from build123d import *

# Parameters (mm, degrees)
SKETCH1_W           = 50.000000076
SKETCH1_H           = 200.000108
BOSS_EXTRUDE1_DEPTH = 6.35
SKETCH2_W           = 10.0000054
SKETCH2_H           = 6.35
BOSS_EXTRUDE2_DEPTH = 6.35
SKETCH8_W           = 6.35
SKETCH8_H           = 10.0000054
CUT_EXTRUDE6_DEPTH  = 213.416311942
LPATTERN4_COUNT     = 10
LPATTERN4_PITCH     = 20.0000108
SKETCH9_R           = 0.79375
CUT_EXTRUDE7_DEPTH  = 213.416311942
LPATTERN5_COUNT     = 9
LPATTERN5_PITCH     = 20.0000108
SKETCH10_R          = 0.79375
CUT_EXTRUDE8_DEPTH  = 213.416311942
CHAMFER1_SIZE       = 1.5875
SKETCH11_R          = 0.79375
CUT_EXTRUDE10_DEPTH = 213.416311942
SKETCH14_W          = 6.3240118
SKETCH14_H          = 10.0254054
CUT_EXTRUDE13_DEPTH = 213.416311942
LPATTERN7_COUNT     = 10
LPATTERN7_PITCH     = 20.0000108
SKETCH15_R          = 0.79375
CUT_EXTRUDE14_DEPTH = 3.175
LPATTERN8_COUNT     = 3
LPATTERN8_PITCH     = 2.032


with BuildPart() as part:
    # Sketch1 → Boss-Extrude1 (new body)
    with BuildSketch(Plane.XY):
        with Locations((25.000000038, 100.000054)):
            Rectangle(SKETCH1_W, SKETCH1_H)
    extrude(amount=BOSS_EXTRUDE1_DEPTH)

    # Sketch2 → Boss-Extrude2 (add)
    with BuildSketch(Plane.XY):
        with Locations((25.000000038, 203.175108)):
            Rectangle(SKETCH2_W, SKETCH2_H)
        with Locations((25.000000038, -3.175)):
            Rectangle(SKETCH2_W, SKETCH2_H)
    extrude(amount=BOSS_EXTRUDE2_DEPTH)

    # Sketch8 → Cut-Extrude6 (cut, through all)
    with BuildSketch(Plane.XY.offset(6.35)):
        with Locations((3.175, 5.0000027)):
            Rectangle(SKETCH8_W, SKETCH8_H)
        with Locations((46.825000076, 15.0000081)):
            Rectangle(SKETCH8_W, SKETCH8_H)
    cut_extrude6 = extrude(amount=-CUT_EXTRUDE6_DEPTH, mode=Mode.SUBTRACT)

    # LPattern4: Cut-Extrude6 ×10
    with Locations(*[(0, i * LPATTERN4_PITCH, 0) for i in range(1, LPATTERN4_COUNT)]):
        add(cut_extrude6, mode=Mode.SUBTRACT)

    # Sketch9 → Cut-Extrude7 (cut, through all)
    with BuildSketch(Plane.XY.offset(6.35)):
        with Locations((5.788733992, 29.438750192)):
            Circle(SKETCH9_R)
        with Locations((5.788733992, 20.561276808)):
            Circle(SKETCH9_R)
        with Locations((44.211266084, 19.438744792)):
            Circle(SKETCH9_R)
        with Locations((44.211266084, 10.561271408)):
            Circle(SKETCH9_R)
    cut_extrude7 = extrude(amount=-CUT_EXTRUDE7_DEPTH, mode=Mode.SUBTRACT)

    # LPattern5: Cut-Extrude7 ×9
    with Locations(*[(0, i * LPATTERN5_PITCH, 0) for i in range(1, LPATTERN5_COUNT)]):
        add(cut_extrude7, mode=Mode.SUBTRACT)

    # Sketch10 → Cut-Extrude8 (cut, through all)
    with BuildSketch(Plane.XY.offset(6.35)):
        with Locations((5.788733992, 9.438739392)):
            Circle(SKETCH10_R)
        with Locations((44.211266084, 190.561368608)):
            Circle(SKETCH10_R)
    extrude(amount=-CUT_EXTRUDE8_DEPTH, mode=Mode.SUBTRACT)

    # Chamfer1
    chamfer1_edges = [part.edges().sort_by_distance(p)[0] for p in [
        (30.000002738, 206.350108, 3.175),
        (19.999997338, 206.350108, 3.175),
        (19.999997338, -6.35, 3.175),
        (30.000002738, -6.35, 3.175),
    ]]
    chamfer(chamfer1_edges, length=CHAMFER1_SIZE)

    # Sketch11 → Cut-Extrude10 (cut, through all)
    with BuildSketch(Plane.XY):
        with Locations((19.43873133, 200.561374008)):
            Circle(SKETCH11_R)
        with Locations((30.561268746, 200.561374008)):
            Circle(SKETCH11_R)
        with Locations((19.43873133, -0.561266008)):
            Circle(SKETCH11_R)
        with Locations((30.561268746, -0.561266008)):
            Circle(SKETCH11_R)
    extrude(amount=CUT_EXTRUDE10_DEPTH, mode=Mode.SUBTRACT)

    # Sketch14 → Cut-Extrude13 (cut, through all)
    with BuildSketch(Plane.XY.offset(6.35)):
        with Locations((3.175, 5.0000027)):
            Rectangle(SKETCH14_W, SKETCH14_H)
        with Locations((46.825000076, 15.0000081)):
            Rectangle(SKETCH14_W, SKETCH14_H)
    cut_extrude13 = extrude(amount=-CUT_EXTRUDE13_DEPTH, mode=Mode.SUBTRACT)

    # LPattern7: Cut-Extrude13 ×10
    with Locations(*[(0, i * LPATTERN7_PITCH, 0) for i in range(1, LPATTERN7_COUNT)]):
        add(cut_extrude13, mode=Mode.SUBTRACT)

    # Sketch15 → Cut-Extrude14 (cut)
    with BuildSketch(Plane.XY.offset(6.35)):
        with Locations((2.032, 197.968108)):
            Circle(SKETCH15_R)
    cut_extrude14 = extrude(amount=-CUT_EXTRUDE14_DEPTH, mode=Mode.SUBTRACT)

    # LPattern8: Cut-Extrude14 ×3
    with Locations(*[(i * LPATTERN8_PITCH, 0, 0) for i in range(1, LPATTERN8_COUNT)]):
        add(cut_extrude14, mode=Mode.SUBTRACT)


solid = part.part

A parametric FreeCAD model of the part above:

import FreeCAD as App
import Part
import Sketcher
from FreeCAD import Vector
Q = App.Units.Quantity


def edges_at(feature, points):
    """Names of the edges that pass closest to the given points."""
    edges = feature.Shape.Edges
    near = lambda p: min(range(len(edges)), key=lambda i: edges[i].distToShape(Part.Vertex(*p))[0])
    return sorted({f"Edge{near(p) + 1}" for p in points})


def add_polygon(sketch, points):
    """Adds a closed chain of lines whose ends are joined by coincident constraints."""
    first, n = sketch.GeometryCount, len(points)
    for a, b in zip(points, points[1:] + points[:1]):
        sketch.addGeometry(Part.LineSegment(App.Vector(*a, 0), App.Vector(*b, 0)), False)
    for i in range(n):
        sketch.addConstraint(Sketcher.Constraint("Coincident", first + i, 2, first + (i + 1) % n, 1))

doc = App.newDocument("Part")
body = doc.addObject("PartDesign::Body", "Body")

sketch1 = doc.addObject("Sketcher::SketchObject", "Sketch")
body.addObject(sketch1)
sketch1.AttachmentSupport = (doc.XY_Plane, [""])
sketch1.MapMode = "FlatFace"
add_polygon(sketch1, [(0, 200.000108), (0, 0), (50, 0), (50, 200.000108)])
sketch1.addConstraint([
    Sketcher.Constraint("Vertical", 0),
    Sketcher.Constraint("Horizontal", 1),
    Sketcher.Constraint("Vertical", 2),
    Sketcher.Constraint("Horizontal", 3),
    Sketcher.Constraint("Coincident", 0, 2, -1, 1),
    Sketcher.Constraint("DistanceX", 1, 1, 1, 2, 50.0),
    Sketcher.Constraint("DistanceY", 0, 2, 0, 1, 200.000108),
])
pad1 = doc.addObject("PartDesign::Pad", "Pad")
body.addObject(pad1)
pad1.Profile = sketch1
pad1.Length = Q("0.25 in")

sketch2 = doc.addObject("Sketcher::SketchObject", "Sketch001")
body.addObject(sketch2)
sketch2.AttachmentSupport = (doc.XY_Plane, [""])
sketch2.MapMode = "FlatFace"
add_polygon(sketch2, [(20, 206), (20, 200), (30, 200), (30, 206)])
add_polygon(sketch2, [(20, 0), (20, -6), (30, -6), (30, 0)])
sketch2.addConstraint([
    Sketcher.Constraint("Vertical", 0),
    Sketcher.Constraint("Horizontal", 1),
    Sketcher.Constraint("Vertical", 2),
    Sketcher.Constraint("Horizontal", 3),
    Sketcher.Constraint("Vertical", 4),
    Sketcher.Constraint("Horizontal", 5),
    Sketcher.Constraint("Vertical", 6),
    Sketcher.Constraint("Horizontal", 7),
    Sketcher.Constraint("PointOnObject", 6, 2, -1),
    Sketcher.Constraint("Vertical", 3, 2, 4, 2),
    Sketcher.Constraint("Vertical", 2, 2, 5, 2),
    Sketcher.Constraint("Equal", 2, 4),
    Sketcher.Constraint("DistanceY", 0, 2, 0, 1, Q("0.25 in")),
    Sketcher.Constraint("DistanceX", 1, 1, 1, 2, 10.000005),
    Sketcher.Constraint("DistanceY", -1, 1, 0, 2, 200.000108),
    Sketcher.Constraint("DistanceX", -1, 1, 0, 2, 19.999997),
])
pad2 = doc.addObject("PartDesign::Pad", "Pad001")
body.addObject(pad2)
pad2.Profile = sketch2
pad2.Length = Q("0.25 in")

sketch3 = doc.addObject("Sketcher::SketchObject", "Sketch002")
body.addObject(sketch3)
sketch3.AttachmentSupport = (doc.XY_Plane, [""])
sketch3.MapMode = "FlatFace"
sketch3.AttachmentOffset = App.Placement(Vector(0, 0, 0.25 * 25.4), App.Rotation())
add_polygon(sketch3, [(0, 10), (0, 0), (6, 0), (6, 10)])
add_polygon(sketch3, [(44, 20), (44, 10), (50, 10), (50, 20)])
sketch3.addConstraint([
    Sketcher.Constraint("Vertical", 0),
    Sketcher.Constraint("Horizontal", 1),
    Sketcher.Constraint("Vertical", 2),
    Sketcher.Constraint("Horizontal", 3),
    Sketcher.Constraint("Vertical", 4),
    Sketcher.Constraint("Horizontal", 5),
    Sketcher.Constraint("Vertical", 6),
    Sketcher.Constraint("Horizontal", 7),
    Sketcher.Constraint("Coincident", 0, 2, -1, 1),
    Sketcher.Constraint("Horizontal", 3, 2, 4, 2),
    Sketcher.Constraint("Equal", 3, 5),
    Sketcher.Constraint("Equal", 2, 4),
    Sketcher.Constraint("DistanceX", 1, 1, 1, 2, Q("0.25 in")),
    Sketcher.Constraint("DistanceX", -1, 1, 4, 2, 43.65),
    Sketcher.Constraint("DistanceY", 0, 2, 0, 1, 10.000005),
])
pocket1 = doc.addObject("PartDesign::Pocket", "Pocket")
body.addObject(pocket1)
pocket1.Profile = sketch3
pocket1.Type = "ThroughAll"
doc.recompute()

linearpattern = doc.addObject("PartDesign::LinearPattern", "LinearPattern")
body.addObject(linearpattern)
linearpattern.Originals = [pocket1]
linearpattern.Direction = (doc.Y_Axis, [""])
linearpattern.Mode = "offset"
linearpattern.Offset = 20.000011
linearpattern.Occurrences = 10
body.Tip = linearpattern

sketch4 = doc.addObject("Sketcher::SketchObject", "Sketch003")
body.addObject(sketch4)
sketch4.AttachmentSupport = (doc.XY_Plane, [""])
sketch4.MapMode = "FlatFace"
sketch4.AttachmentOffset = App.Placement(Vector(0, 0, 0.25 * 25.4), App.Rotation())
sketch4.addGeometry([
    Part.Circle(Vector(5.8, 29.4, 0), Vector(0, 0, 1), 0.8),
    Part.Circle(Vector(5.8, 20.6, 0), Vector(0, 0, 1), 0.8),
    Part.Circle(Vector(44.2, 19.4, 0), Vector(0, 0, 1), 0.8),
    Part.Circle(Vector(44.2, 10.6, 0), Vector(0, 0, 1), 0.8),
], False)
sketch4.addConstraint([
    Sketcher.Constraint("Equal", 0, 1),
    Sketcher.Constraint("Equal", 1, 2),
    Sketcher.Constraint("Equal", 2, 3),
    Sketcher.Constraint("Vertical", 0, 3, 1, 3),
    Sketcher.Constraint("Vertical", 2, 3, 3, 3),
    Sketcher.Constraint("Diameter", 0, Q("0.0625 in")),
    Sketcher.Constraint("DistanceY", -1, 1, 0, 3, 29.43875),
    Sketcher.Constraint("DistanceY", -1, 1, 3, 3, 10.561271),
    Sketcher.Constraint("DistanceX", -1, 1, 0, 3, 5.788734),
    Sketcher.Constraint("DistanceY", -1, 1, 1, 3, 20.561277),
    Sketcher.Constraint("DistanceX", -1, 1, 2, 3, 44.211266),
    Sketcher.Constraint("DistanceY", -1, 1, 2, 3, 19.438745),
])
pocket2 = doc.addObject("PartDesign::Pocket", "Pocket001")
body.addObject(pocket2)
pocket2.Profile = sketch4
pocket2.Type = "ThroughAll"
doc.recompute()

linearpattern2 = doc.addObject("PartDesign::LinearPattern", "LinearPattern001")
body.addObject(linearpattern2)
linearpattern2.Originals = [pocket2]
linearpattern2.Direction = (doc.Y_Axis, [""])
linearpattern2.Mode = "offset"
linearpattern2.Offset = 20.000011
linearpattern2.Occurrences = 9
body.Tip = linearpattern2

sketch5 = doc.addObject("Sketcher::SketchObject", "Sketch004")
body.addObject(sketch5)
sketch5.AttachmentSupport = (doc.XY_Plane, [""])
sketch5.MapMode = "FlatFace"
sketch5.AttachmentOffset = App.Placement(Vector(0, 0, 0.25 * 25.4), App.Rotation())
sketch5.addGeometry([
    Part.Circle(Vector(5.8, 9.4, 0), Vector(0, 0, 1), 0.8),
    Part.Circle(Vector(44.2, 190.6, 0), Vector(0, 0, 1), 0.8),
], False)
sketch5.addConstraint([
    Sketcher.Constraint("Equal", 0, 1),
    Sketcher.Constraint("Diameter", 0, Q("0.0625 in")),
    Sketcher.Constraint("DistanceY", -1, 1, 0, 3, 9.438739),
    Sketcher.Constraint("DistanceY", -1, 1, 1, 3, 190.561369),
    Sketcher.Constraint("DistanceX", -1, 1, 0, 3, 5.788734),
    Sketcher.Constraint("DistanceX", -1, 1, 1, 3, 44.211266),
])
pocket3 = doc.addObject("PartDesign::Pocket", "Pocket002")
body.addObject(pocket3)
pocket3.Profile = sketch5
pocket3.Type = "ThroughAll"
doc.recompute()

chamfer = doc.addObject("PartDesign::Chamfer", "Chamfer")
body.addObject(chamfer)
chamfer.Base = (pocket3, edges_at(pocket3, [
    (30, 206.35, 3.175),
    (20, 206.35, 3.175),
    (20, -6.35, 3.175),
    (30, -6.35, 3.175),
]))
chamfer.Size = Q("0.0625 in")

sketch6 = doc.addObject("Sketcher::SketchObject", "Sketch005")
body.addObject(sketch6)
sketch6.AttachmentSupport = (doc.XY_Plane, [""])
sketch6.MapMode = "FlatFace"
sketch6.addGeometry([
    Part.Circle(Vector(19.4, 200.6, 0), Vector(0, 0, 1), 0.8),
    Part.Circle(Vector(30.6, 200.6, 0), Vector(0, 0, 1), 0.8),
    Part.Circle(Vector(19.4, -0.6, 0), Vector(0, 0, 1), 0.8),
    Part.Circle(Vector(30.6, -0.6, 0), Vector(0, 0, 1), 0.8),
], False)
sketch6.addConstraint([
    Sketcher.Constraint("Equal", 0, 1),
    Sketcher.Constraint("Equal", 1, 2),
    Sketcher.Constraint("Equal", 2, 3),
    Sketcher.Constraint("Horizontal", 0, 3, 1, 3),
    Sketcher.Constraint("Horizontal", 2, 3, 3, 3),
    Sketcher.Constraint("Vertical", 0, 3, 2, 3),
    Sketcher.Constraint("Vertical", 1, 3, 3, 3),
    Sketcher.Constraint("Diameter", 0, Q("0.0625 in")),
    Sketcher.Constraint("DistanceX", -1, 1, 0, 3, 19.438731),
    Sketcher.Constraint("DistanceX", -1, 1, 1, 3, 30.561269),
    Sketcher.Constraint("DistanceY", 2, 3, 0, 3, 201.12264),
    Sketcher.Constraint("DistanceY", -1, 1, 0, 3, 200.561374),
])
pocket4 = doc.addObject("PartDesign::Pocket", "Pocket003")
body.addObject(pocket4)
pocket4.Profile = sketch6
pocket4.Type = "ThroughAll"
pocket4.Reversed = True

sketch7 = doc.addObject("Sketcher::SketchObject", "Sketch006")
body.addObject(sketch7)
sketch7.AttachmentSupport = (doc.XY_Plane, [""])
sketch7.MapMode = "FlatFace"
sketch7.AttachmentOffset = App.Placement(Vector(0, 0, 0.25 * 25.4), App.Rotation())
add_polygon(sketch7, [(0, 10), (0, 0), (6, 0), (6, 10)])
add_polygon(sketch7, [(44, 20), (44, 10), (50, 10), (50, 20)])
sketch7.addConstraint([
    Sketcher.Constraint("Vertical", 0),
    Sketcher.Constraint("Horizontal", 1),
    Sketcher.Constraint("Vertical", 2),
    Sketcher.Constraint("Horizontal", 3),
    Sketcher.Constraint("Vertical", 4),
    Sketcher.Constraint("Horizontal", 5),
    Sketcher.Constraint("Vertical", 6),
    Sketcher.Constraint("Horizontal", 7),
    Sketcher.Constraint("Equal", 3, 5),
    Sketcher.Constraint("Equal", 2, 4),
    Sketcher.Constraint("DistanceY", 4, 2, 2, 2, Q("0.001 in")),
    Sketcher.Constraint("DistanceY", 0, 2, -1, 1, Q("0.0005 in")),
    Sketcher.Constraint("DistanceX", 1, 1, 1, 2, 6.324012),
    Sketcher.Constraint("DistanceX", 3, 2, 4, 2, 43.65),
    Sketcher.Constraint("DistanceY", 0, 2, 0, 1, 10.025405),
    Sketcher.Constraint("DistanceX", -1, 1, 0, 2, 0.012994),
])
pocket5 = doc.addObject("PartDesign::Pocket", "Pocket004")
body.addObject(pocket5)
pocket5.Profile = sketch7
pocket5.Type = "ThroughAll"
doc.recompute()

linearpattern3 = doc.addObject("PartDesign::LinearPattern", "LinearPattern002")
body.addObject(linearpattern3)
linearpattern3.Originals = [pocket5]
linearpattern3.Direction = (doc.Y_Axis, [""])
linearpattern3.Mode = "offset"
linearpattern3.Offset = 20.000011
linearpattern3.Occurrences = 10
body.Tip = linearpattern3

sketch8 = doc.addObject("Sketcher::SketchObject", "Sketch007")
body.addObject(sketch8)
sketch8.AttachmentSupport = (doc.XY_Plane, [""])
sketch8.MapMode = "FlatFace"
sketch8.AttachmentOffset = App.Placement(Vector(0, 0, 0.25 * 25.4), App.Rotation())
sketch8.addGeometry(Part.Circle(Vector(2, 198, 0), Vector(0, 0, 1), 0.8), False)
sketch8.addConstraint([
    Sketcher.Constraint("Diameter", 0, Q("0.0625 in")),
    Sketcher.Constraint("DistanceX", -1, 1, 0, 3, Q("0.08 in")),
    Sketcher.Constraint("DistanceY", -1, 1, 0, 3, 197.968108),
])
pocket6 = doc.addObject("PartDesign::Pocket", "Pocket005")
body.addObject(pocket6)
pocket6.Profile = sketch8
pocket6.Length = Q("0.125 in")
doc.recompute()

linearpattern4 = doc.addObject("PartDesign::LinearPattern", "LinearPattern003")
body.addObject(linearpattern4)
linearpattern4.Originals = [pocket6]
linearpattern4.Direction = (doc.X_Axis, [""])
linearpattern4.Mode = "offset"
linearpattern4.Offset = Q("0.08 in")
linearpattern4.Occurrences = 3
body.Tip = linearpattern4

doc.recompute()
